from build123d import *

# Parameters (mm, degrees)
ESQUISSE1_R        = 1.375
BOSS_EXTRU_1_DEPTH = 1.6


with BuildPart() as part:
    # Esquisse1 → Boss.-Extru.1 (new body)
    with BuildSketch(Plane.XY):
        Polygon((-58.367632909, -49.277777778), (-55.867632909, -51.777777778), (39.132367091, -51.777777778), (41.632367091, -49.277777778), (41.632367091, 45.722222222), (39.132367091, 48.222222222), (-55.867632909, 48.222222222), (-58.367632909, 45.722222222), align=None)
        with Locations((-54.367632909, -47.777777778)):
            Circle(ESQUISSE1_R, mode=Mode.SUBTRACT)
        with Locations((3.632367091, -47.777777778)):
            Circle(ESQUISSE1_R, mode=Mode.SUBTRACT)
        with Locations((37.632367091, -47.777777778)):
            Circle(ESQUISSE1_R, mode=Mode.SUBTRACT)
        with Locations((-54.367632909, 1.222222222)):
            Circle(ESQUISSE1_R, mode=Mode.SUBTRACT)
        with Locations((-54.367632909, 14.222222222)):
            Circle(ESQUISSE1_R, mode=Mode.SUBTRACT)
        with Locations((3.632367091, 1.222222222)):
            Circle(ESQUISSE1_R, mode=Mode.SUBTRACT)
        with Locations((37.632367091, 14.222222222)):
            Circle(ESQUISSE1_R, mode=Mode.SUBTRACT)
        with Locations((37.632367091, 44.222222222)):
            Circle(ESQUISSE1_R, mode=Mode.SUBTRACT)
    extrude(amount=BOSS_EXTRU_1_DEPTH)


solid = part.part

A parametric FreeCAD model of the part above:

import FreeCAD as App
import Part
import Sketcher
Q = App.Units.Quantity


def add_polygon(sketch, points):
    """Adds a closed chain of lines whose ends are joined by coincident constraints."""
    first, n = sketch.GeometryCount, len(points)
    for a, b in zip(points, points[1:] + points[:1]):
        sketch.addGeometry(Part.LineSegment(App.Vector(*a, 0), App.Vector(*b, 0)), False)
    for i in range(n):
        sketch.addConstraint(Sketcher.Constraint("Coincident", first + i, 2, first + (i + 1) % n, 1))

doc = App.newDocument("Part")
body = doc.addObject("PartDesign::Body", "Body")

# Sketch on XY plane
sketch1 = doc.addObject("Sketcher::SketchObject", "Sketch")
body.addObject(sketch1)
sketch1.AttachmentSupport = (doc.XY_Plane, [""])
sketch1.MapMode = "FlatFace"
add_polygon(sketch1, [(-58.4, -49.3), (-55.9, -51.8), (39.1, -51.8), (41.6, -49.3), (41.6, 45.7), (39.1, 48.2), (-55.9, 48.2), (-58.4, 45.7)])  # lines 0-7
sketch1.addGeometry(Part.Circle(App.Vector(-54.4, -47.8, 0), App.Vector(0, 0, 1), 1.4), False)  # 8
sketch1.addGeometry(Part.Circle(App.Vector(3.6, -47.8, 0), App.Vector(0, 0, 1), 1.4), False)  # 9
sketch1.addGeometry(Part.Circle(App.Vector(37.6, -47.8, 0), App.Vector(0, 0, 1), 1.4), False)  # 10
sketch1.addGeometry(Part.Circle(App.Vector(-54.4, 1.2, 0), App.Vector(0, 0, 1), 1.4), False)  # 11
sketch1.addGeometry(Part.Circle(App.Vector(-54.4, 14.2, 0), App.Vector(0, 0, 1), 1.4), False)  # 12
sketch1.addGeometry(Part.Circle(App.Vector(3.6, 1.2, 0), App.Vector(0, 0, 1), 1.4), False)  # 13
sketch1.addGeometry(Part.Circle(App.Vector(37.6, 14.2, 0), App.Vector(0, 0, 1), 1.4), False)  # 14
sketch1.addGeometry(Part.Circle(App.Vector(37.6, 44.2, 0), App.Vector(0, 0, 1), 1.4), False)  # 15
sketch1.addConstraint([
    Sketcher.Constraint("Horizontal", 1),
    Sketcher.Constraint("Vertical", 3),
    Sketcher.Constraint("Horizontal", 5),
    Sketcher.Constraint("Vertical", 7),
    Sketcher.Constraint("Equal", 8, 9),
    Sketcher.Constraint("Equal", 9, 10),
    Sketcher.Constraint("Equal", 10, 11),
    Sketcher.Constraint("Equal", 11, 12),
    Sketcher.Constraint("Equal", 12, 13),
    Sketcher.Constraint("Equal", 13, 14),
    Sketcher.Constraint("Equal", 14, 15),
    Sketcher.Constraint("Perpendicular", 0, 2),
    Sketcher.Constraint("Perpendicular", 2, 4),
    Sketcher.Constraint("Perpendicular", 4, 6),
    Sketcher.Constraint("Horizontal", 8, 3, 9, 3),
    Sketcher.Constraint("Horizontal", 9, 3, 10, 3),
    Sketcher.Constraint("Horizontal", 11, 3, 13, 3),
    Sketcher.Constraint("Horizontal", 12, 3, 14, 3),
    Sketcher.Constraint("Horizontal", 3, 2, 6, 2),
    Sketcher.Constraint("Horizontal", 2, 2, 7, 2),
    Sketcher.Constraint("Vertical", 8, 3, 11, 3),
    Sketcher.Constraint("Vertical", 11, 3, 12, 3),
    Sketcher.Constraint("Vertical", 9, 3, 13, 3),
    Sketcher.Constraint("Vertical", 10, 3, 14, 3),
    Sketcher.Constraint("Vertical", 14, 3, 15, 3),
    Sketcher.Constraint("Vertical", 1, 2, 4, 2),
    Sketcher.Constraint("Vertical", 0, 2, 5, 2),
    Sketcher.Constraint("Equal", 5, 3),
    Sketcher.Constraint("Diameter", 8, Q("2.75 mm")),
    Sketcher.Constraint("DistanceX", 1, 1, 1, 2, Q("95 mm")),
    Sketcher.Constraint("DistanceX", 8, 3, 9, 3, Q("58 mm")),
    Sketcher.Constraint("DistanceX", 9, 3, 10, 3, Q("34 mm")),
    Sketcher.Constraint("DistanceY", 8, 3, 11, 3, Q("49 mm")),
    Sketcher.Constraint("DistanceY", 11, 3, 12, 3, Q("13 mm")),
    Sketcher.Constraint("DistanceY", 14, 3, 15, 3, Q("30 mm")),
    Sketcher.Constraint("DistanceY", 0, 2, 8, 3, Q("4 mm")),
    Sketcher.Constraint("DistanceX", 10, 3, 2, 2, Q("4 mm")),
    Sketcher.Constraint("DistanceY", 15, 3, 4, 2, Q("4 mm")),
    Sketcher.Constraint("DistanceX", 8, 3, -1, 1, Q("54.367633 mm")),
    Sketcher.Constraint("DistanceY", 8, 3, -1, 1, Q("47.777778 mm")),
])
pad1 = doc.addObject("PartDesign::Pad", "Pad")
body.addObject(pad1)
pad1.Profile = sketch1
pad1.Length = 1.6

doc.recompute()
